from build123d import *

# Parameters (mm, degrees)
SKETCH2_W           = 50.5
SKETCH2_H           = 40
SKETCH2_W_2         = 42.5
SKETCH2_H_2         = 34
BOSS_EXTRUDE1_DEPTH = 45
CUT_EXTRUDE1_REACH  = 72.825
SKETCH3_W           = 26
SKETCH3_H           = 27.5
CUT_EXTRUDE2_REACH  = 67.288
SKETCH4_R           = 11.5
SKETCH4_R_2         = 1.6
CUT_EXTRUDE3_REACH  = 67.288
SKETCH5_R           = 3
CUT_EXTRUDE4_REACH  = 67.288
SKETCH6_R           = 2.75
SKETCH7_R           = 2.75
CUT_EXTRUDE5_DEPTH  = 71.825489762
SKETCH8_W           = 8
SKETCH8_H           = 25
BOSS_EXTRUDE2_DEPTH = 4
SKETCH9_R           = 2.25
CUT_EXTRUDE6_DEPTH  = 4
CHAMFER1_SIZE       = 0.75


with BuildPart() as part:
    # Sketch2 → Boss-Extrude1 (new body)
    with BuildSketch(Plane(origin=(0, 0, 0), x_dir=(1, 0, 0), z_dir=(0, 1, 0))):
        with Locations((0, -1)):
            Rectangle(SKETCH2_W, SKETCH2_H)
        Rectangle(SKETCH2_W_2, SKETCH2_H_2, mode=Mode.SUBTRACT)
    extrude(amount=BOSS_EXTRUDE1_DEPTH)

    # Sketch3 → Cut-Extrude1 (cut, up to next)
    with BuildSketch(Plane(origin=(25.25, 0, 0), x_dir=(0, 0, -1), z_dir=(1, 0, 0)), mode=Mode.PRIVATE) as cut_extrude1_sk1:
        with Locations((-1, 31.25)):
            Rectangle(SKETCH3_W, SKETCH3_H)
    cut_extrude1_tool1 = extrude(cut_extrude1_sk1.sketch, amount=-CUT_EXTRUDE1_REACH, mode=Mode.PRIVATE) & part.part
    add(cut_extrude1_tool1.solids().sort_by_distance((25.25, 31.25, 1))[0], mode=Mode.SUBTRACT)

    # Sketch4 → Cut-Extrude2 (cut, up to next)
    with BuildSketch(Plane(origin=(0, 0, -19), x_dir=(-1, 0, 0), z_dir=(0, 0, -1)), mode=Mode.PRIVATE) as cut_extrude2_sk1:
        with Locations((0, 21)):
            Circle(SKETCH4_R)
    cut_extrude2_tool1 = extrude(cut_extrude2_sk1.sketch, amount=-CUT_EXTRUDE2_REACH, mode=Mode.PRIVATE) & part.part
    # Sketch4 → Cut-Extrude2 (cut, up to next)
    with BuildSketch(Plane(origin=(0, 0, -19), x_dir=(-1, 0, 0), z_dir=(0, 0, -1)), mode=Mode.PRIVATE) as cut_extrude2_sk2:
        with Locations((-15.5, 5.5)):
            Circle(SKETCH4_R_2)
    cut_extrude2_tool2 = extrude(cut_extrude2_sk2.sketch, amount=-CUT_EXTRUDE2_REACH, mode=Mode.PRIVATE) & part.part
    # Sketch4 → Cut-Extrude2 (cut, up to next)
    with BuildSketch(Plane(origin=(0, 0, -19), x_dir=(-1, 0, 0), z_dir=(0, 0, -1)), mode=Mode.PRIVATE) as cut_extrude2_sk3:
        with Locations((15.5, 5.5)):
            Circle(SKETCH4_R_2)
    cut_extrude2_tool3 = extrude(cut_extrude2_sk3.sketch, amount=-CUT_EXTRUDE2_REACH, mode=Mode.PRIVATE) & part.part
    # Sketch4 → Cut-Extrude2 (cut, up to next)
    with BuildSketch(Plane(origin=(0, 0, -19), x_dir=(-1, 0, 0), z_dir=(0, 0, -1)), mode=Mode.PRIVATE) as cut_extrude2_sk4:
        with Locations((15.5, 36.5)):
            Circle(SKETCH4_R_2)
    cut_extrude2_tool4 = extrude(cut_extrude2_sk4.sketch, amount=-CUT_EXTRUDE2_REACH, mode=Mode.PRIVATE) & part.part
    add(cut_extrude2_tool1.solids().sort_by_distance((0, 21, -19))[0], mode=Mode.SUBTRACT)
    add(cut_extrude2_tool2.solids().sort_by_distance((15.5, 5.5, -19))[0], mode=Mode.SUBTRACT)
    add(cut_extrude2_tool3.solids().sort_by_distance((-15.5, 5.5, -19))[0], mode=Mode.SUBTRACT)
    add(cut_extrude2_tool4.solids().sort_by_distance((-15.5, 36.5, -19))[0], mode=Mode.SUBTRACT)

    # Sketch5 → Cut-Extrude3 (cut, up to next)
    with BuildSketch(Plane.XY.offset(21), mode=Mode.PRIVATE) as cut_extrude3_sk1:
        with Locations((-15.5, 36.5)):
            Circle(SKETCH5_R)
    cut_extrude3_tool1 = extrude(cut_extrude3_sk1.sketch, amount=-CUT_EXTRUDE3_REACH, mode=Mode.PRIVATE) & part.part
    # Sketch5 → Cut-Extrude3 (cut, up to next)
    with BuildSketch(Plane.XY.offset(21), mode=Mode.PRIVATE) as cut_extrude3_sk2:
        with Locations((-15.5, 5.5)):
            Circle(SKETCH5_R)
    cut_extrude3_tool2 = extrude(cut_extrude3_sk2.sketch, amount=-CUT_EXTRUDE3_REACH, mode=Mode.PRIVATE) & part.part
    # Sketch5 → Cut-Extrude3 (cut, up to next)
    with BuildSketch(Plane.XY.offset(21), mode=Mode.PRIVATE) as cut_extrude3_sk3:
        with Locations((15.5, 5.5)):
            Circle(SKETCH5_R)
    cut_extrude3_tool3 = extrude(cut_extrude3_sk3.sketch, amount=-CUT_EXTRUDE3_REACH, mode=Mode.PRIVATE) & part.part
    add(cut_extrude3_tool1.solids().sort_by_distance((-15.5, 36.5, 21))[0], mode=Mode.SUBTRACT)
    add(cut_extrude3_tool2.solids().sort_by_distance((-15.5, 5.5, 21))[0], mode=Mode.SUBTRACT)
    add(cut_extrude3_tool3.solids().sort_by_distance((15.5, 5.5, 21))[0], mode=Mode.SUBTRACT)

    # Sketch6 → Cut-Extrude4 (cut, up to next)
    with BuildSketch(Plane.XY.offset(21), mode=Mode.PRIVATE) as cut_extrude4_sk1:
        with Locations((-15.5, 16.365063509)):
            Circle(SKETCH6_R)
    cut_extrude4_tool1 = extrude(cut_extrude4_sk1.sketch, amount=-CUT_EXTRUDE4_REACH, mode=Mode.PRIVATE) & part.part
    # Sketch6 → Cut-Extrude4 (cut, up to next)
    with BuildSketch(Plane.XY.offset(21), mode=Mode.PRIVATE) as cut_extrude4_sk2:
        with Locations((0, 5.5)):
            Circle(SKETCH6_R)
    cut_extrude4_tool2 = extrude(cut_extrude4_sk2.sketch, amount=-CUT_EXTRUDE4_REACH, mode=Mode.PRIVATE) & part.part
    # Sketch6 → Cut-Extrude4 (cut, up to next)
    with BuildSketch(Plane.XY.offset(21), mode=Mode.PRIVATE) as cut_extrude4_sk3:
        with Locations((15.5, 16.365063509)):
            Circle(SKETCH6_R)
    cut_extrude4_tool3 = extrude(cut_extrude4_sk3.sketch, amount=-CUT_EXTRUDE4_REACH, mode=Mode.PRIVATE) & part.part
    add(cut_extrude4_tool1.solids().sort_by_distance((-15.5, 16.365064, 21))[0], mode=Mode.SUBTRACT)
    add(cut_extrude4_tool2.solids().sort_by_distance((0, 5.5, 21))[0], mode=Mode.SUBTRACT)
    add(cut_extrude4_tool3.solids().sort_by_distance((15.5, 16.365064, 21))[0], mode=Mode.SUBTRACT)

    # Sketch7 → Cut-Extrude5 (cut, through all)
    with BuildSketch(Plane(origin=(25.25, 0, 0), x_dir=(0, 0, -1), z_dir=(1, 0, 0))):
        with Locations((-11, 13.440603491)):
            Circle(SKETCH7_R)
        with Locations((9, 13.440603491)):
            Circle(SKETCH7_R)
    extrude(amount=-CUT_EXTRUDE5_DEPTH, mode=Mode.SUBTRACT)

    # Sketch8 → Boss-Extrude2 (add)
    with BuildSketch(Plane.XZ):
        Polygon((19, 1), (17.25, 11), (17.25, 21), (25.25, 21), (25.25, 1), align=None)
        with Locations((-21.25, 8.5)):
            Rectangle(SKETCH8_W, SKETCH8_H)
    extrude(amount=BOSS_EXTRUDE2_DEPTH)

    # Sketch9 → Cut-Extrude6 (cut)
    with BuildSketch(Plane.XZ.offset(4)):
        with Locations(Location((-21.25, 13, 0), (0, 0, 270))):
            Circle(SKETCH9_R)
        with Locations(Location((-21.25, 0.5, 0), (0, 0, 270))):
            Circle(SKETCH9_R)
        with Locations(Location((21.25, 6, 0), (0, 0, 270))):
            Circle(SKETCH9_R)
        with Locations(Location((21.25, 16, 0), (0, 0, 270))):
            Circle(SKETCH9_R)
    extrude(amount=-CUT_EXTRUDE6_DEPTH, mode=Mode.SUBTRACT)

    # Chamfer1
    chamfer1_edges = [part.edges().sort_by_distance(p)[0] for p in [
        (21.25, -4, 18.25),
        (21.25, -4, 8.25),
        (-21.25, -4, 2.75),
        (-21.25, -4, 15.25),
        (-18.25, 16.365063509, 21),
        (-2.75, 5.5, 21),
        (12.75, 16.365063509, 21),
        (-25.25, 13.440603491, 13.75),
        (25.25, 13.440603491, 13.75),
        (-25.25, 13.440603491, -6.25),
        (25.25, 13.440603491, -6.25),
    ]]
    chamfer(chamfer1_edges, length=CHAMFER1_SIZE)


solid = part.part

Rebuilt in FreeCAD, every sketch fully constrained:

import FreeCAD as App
import Part
import Sketcher

V = App.Vector


def edges_at(feature, points):
    """Names of the edges that pass closest to the given points."""
    edges = feature.Shape.Edges
    near = lambda p: min(range(len(edges)), key=lambda i: edges[i].distToShape(Part.Vertex(*p))[0])
    return sorted({f"Edge{near(p) + 1}" for p in points})

doc = App.newDocument("Part")
params = doc.addObject("Spreadsheet::Sheet", "Params")
for row, (alias, value) in enumerate([
    ("sketch1_height", "40 mm"),
    ("sketch1_height2", "34 mm"),
    ("sketch1_width", "50.5 mm"),
    ("sketch1_width2", "42.5 mm"),
    ("pad1_length", "45 mm"),
    ("sketch2_height", "26 mm"),
    ("sketch2_width", "27.5 mm"),
    ("sketch3_diameter", "23 mm"),
    ("sketch4_diameter", "3.2 mm"),
    ("sketch5_diameter", "3.2 mm"),
    ("sketch6_diameter", "3.2 mm"),
    ("sketch7_diameter", "6 mm"),
    ("sketch8_diameter", "6 mm"),
    ("sketch9_diameter", "6 mm"),
    ("sketch10_diameter", "5.5 mm"),
    ("sketch11_diameter", "5.5 mm"),
    ("sketch12_diameter", "5.5 mm"),
    ("sketch13_diameter", "5.5 mm"),
    ("sketch14_width", "8 mm"),
    ("sketch14_height", "20 mm"),
    ("sketch14_height2", "10 mm"),
    ("sketch14_height3", "25 mm"),
    ("sketch14_width2", "6.25 mm"),
    ("pad2_length", "4 mm"),
    ("sketch15_diameter", "4.5 mm"),
    ("pocket13_length", "4 mm"),
    ("chamfer_size", "0.75 mm"),
], start=1):
    params.set(f"A{row}", alias)
    params.set(f"B{row}", "=" + value)
    params.setAlias(f"B{row}", alias)

body = doc.addObject("PartDesign::Body", "Body")

sketch1 = body.newObject("Sketcher::SketchObject", "Sketch")
sketch1.AttachmentSupport = (doc.getObject("XZ_Plane"), [""])
sketch1.MapMode = "FlatFace"
sketch1.addGeometry([
    Part.LineSegment(V(-25, -19, 0), V(-25, 21, 0)),
    Part.LineSegment(V(-25, 21, 0), V(25, 21, 0)),
    Part.LineSegment(V(25, 21, 0), V(25, -19, 0)),
    Part.LineSegment(V(25, -19, 0), V(-25, -19, 0)),
    Part.LineSegment(V(21, 17, 0), V(-21, 17, 0)),
    Part.LineSegment(V(-21, 17, 0), V(-21, -17, 0)),
    Part.LineSegment(V(-21, -17, 0), V(21, -17, 0)),
    Part.LineSegment(V(21, -17, 0), V(21, 17, 0)),
], False)
sketch1.addConstraint([
    Sketcher.Constraint("Coincident", 0, 2, 1, 1),
    Sketcher.Constraint("Coincident", 1, 2, 2, 1),
    Sketcher.Constraint("Coincident", 2, 2, 3, 1),
    Sketcher.Constraint("Coincident", 3, 2, 0, 1),
    Sketcher.Constraint("Coincident", 4, 2, 5, 1),
    Sketcher.Constraint("Coincident", 5, 2, 6, 1),
    Sketcher.Constraint("Coincident", 6, 2, 7, 1),
    Sketcher.Constraint("Coincident", 7, 2, 4, 1),
    Sketcher.Constraint("Vertical", 0),
    Sketcher.Constraint("Horizontal", 1),
    Sketcher.Constraint("Vertical", 2),
    Sketcher.Constraint("Horizontal", 3),
    Sketcher.Constraint("Horizontal", 4),
    Sketcher.Constraint("Vertical", 5),
    Sketcher.Constraint("Horizontal", 6),
    Sketcher.Constraint("Vertical", 7),
    Sketcher.Constraint("Symmetric", 4, 2, 6, 2, -1, 1),
    Sketcher.Constraint("DistanceY", 0, 1, 0, 2, 40.0),
    Sketcher.Constraint("DistanceY", 5, 2, 5, 1, 34.0),
    Sketcher.Constraint("DistanceX", 1, 1, 1, 2, 50.5),
    Sketcher.Constraint("DistanceX", 4, 2, 4, 1, 42.5),
    Sketcher.Constraint("DistanceY", -1, 1, 0, 2, 21.0),
    Sketcher.Constraint("DistanceX", 0, 2, 4, 2, 4.0),
])
sketch1.setExpression("Constraints[17]", "Params.sketch1_height")
sketch1.setExpression("Constraints[18]", "Params.sketch1_height2")
sketch1.setExpression("Constraints[19]", "Params.sketch1_width")
sketch1.setExpression("Constraints[20]", "Params.sketch1_width2")
pad1 = body.newObject("PartDesign::Pad", "Pad")
pad1.Profile = sketch1
pad1.setExpression("Length", "Params.pad1_length")
pad1.Reversed = True

sketch2 = body.newObject("Sketcher::SketchObject", "Sketch001")
sketch2.AttachmentSupport = (doc.getObject("YZ_Plane"), [""])
sketch2.MapMode = "FlatFace"
sketch2.AttachmentOffset = App.Placement(V(0, 0, 25.25), App.Rotation())
sketch2.addGeometry([
    Part.LineSegment(V(45, 14, 0), V(18, 14, 0)),
    Part.LineSegment(V(18, 14, 0), V(18, -12, 0)),
    Part.LineSegment(V(18, -12, 0), V(45, -12, 0)),
    Part.LineSegment(V(45, -12, 0), V(45, 14, 0)),
], False)
sketch2.addConstraint([
    Sketcher.Constraint("Coincident", 0, 2, 1, 1),
    Sketcher.Constraint("Coincident", 1, 2, 2, 1),
    Sketcher.Constraint("Coincident", 2, 2, 3, 1),
    Sketcher.Constraint("Coincident", 3, 2, 0, 1),
    Sketcher.Constraint("Horizontal", 0),
    Sketcher.Constraint("Vertical", 1),
    Sketcher.Constraint("Horizontal", 2),
    Sketcher.Constraint("Vertical", 3),
    Sketcher.Constraint("DistanceY", 1, 2, 1, 1, 26.0),
    Sketcher.Constraint("DistanceX", 0, 2, 0, 1, 27.5),
    Sketcher.Constraint("DistanceY", -1, 1, 0, 2, 14.0),
    Sketcher.Constraint("DistanceX", -1, 1, 2, 2, 45.0),
])
sketch2.setExpression("Constraints[8]", "Params.sketch2_height")
sketch2.setExpression("Constraints[9]", "Params.sketch2_width")
pocket1 = body.newObject("PartDesign::Pocket", "Pocket")
pocket1.Profile = sketch2
pocket1.Type = "UpToFirst"

sketch3 = body.newObject("Sketcher::SketchObject", "Sketch002")
sketch3.AttachmentSupport = (doc.getObject("XY_Plane"), [""])
sketch3.MapMode = "FlatFace"
sketch3.AttachmentOffset = App.Placement(V(0, 0, -19), App.Rotation())
sketch3.addGeometry(Part.Circle(V(0, 21, 0), V(0, 0, 1), 12), False)
sketch3.addConstraint([
    Sketcher.Constraint("PointOnObject", 0, 3, -2),
    Sketcher.Constraint("Diameter", 0, 23.0),
    Sketcher.Constraint("DistanceY", -1, 1, 0, 3, 21.0),
])
sketch3.setExpression("Constraints[1]", "Params.sketch3_diameter")
pocket2 = body.newObject("PartDesign::Pocket", "Pocket001")
pocket2.Profile = sketch3
pocket2.Type = "UpToFirst"
pocket2.Reversed = True

sketch4 = body.newObject("Sketcher::SketchObject", "Sketch003")
sketch4.AttachmentSupport = (doc.getObject("XY_Plane"), [""])
sketch4.MapMode = "FlatFace"
sketch4.AttachmentOffset = App.Placement(V(0, 0, -19), App.Rotation())
sketch4.addGeometry(Part.Circle(V(15.5, 5.5, 0), V(0, 0, 1), 1.6), False)
sketch4.addConstraint([
    Sketcher.Constraint("Diameter", 0, 3.2),
    Sketcher.Constraint("DistanceX", -1, 1, 0, 3, 15.5),
    Sketcher.Constraint("DistanceY", -1, 1, 0, 3, 5.5),
])
sketch4.setExpression("Constraints[0]", "Params.sketch4_diameter")
pocket3 = body.newObject("PartDesign::Pocket", "Pocket002")
pocket3.Profile = sketch4
pocket3.Type = "UpToFirst"
pocket3.Reversed = True

sketch5 = body.newObject("Sketcher::SketchObject", "Sketch004")
sketch5.AttachmentSupport = (doc.getObject("XY_Plane"), [""])
sketch5.MapMode = "FlatFace"
sketch5.AttachmentOffset = App.Placement(V(0, 0, -19), App.Rotation())
sketch5.addGeometry(Part.Circle(V(-15.5, 5.5, 0), V(0, 0, 1), 1.6), False)
sketch5.addConstraint([
    Sketcher.Constraint("Diameter", 0, 3.2),
    Sketcher.Constraint("DistanceX", 0, 3, -1, 1, 15.5),
    Sketcher.Constraint("DistanceY", -1, 1, 0, 3, 5.5),
])
sketch5.setExpression("Constraints[0]", "Params.sketch5_diameter")
pocket4 = body.newObject("PartDesign::Pocket", "Pocket003")
pocket4.Profile = sketch5
pocket4.Type = "UpToFirst"
pocket4.Reversed = True

sketch6 = body.newObject("Sketcher::SketchObject", "Sketch005")
sketch6.AttachmentSupport = (doc.getObject("XY_Plane"), [""])
sketch6.MapMode = "FlatFace"
sketch6.AttachmentOffset = App.Placement(V(0, 0, -19), App.Rotation())
sketch6.addGeometry(Part.Circle(V(-15.5, 36.5, 0), V(0, 0, 1), 1.6), False)
sketch6.addConstraint([
    Sketcher.Constraint("Diameter", 0, 3.2),
    Sketcher.Constraint("DistanceX", 0, 3, -1, 1, 15.5),
    Sketcher.Constraint("DistanceY", -1, 1, 0, 3, 36.5),
])
sketch6.setExpression("Constraints[0]", "Params.sketch6_diameter")
pocket5 = body.newObject("PartDesign::Pocket", "Pocket004")
pocket5.Profile = sketch6
pocket5.Type = "UpToFirst"
pocket5.Reversed = True

sketch7 = body.newObject("Sketcher::SketchObject", "Sketch006")
sketch7.AttachmentSupport = (doc.getObject("XY_Plane"), [""])
sketch7.MapMode = "FlatFace"
sketch7.AttachmentOffset = App.Placement(V(0, 0, 21), App.Rotation())
sketch7.addGeometry(Part.Circle(V(-15.5, 36.5, 0), V(0, 0, 1), 3), False)
sketch7.addConstraint([
    Sketcher.Constraint("Diameter", 0, 6.0),
    Sketcher.Constraint("DistanceX", 0, 3, -1, 1, 15.5),
    Sketcher.Constraint("DistanceY", -1, 1, 0, 3, 36.5),
])
sketch7.setExpression("Constraints[0]", "Params.sketch7_diameter")
pocket6 = body.newObject("PartDesign::Pocket", "Pocket005")
pocket6.Profile = sketch7
pocket6.Type = "UpToFirst"

sketch8 = body.newObject("Sketcher::SketchObject", "Sketch007")
sketch8.AttachmentSupport = (doc.getObject("XY_Plane"), [""])
sketch8.MapMode = "FlatFace"
sketch8.AttachmentOffset = App.Placement(V(0, 0, 21), App.Rotation())
sketch8.addGeometry(Part.Circle(V(-15.5, 5.5, 0), V(0, 0, 1), 3), False)
sketch8.addConstraint([
    Sketcher.Constraint("Diameter", 0, 6.0),
    Sketcher.Constraint("DistanceX", 0, 3, -1, 1, 15.5),
    Sketcher.Constraint("DistanceY", -1, 1, 0, 3, 5.5),
])
sketch8.setExpression("Constraints[0]", "Params.sketch8_diameter")
pocket7 = body.newObject("PartDesign::Pocket", "Pocket006")
pocket7.Profile = sketch8
pocket7.Type = "UpToFirst"

sketch9 = body.newObject("Sketcher::SketchObject", "Sketch008")
sketch9.AttachmentSupport = (doc.getObject("XY_Plane"), [""])
sketch9.MapMode = "FlatFace"
sketch9.AttachmentOffset = App.Placement(V(0, 0, 21), App.Rotation())
sketch9.addGeometry(Part.Circle(V(15.5, 5.5, 0), V(0, 0, 1), 3), False)
sketch9.addConstraint([
    Sketcher.Constraint("Diameter", 0, 6.0),
    Sketcher.Constraint("DistanceX", -1, 1, 0, 3, 15.5),
    Sketcher.Constraint("DistanceY", -1, 1, 0, 3, 5.5),
])
sketch9.setExpression("Constraints[0]", "Params.sketch9_diameter")
pocket8 = body.newObject("PartDesign::Pocket", "Pocket007")
pocket8.Profile = sketch9
pocket8.Type = "UpToFirst"

sketch10 = body.newObject("Sketcher::SketchObject", "Sketch009")
sketch10.AttachmentSupport = (doc.getObject("XY_Plane"), [""])
sketch10.MapMode = "FlatFace"
sketch10.AttachmentOffset = App.Placement(V(0, 0, 21), App.Rotation())
sketch10.addGeometry(Part.Circle(V(-15.5, 16.4, 0), V(0, 0, 1), 2.8), False)
sketch10.addConstraint([
    Sketcher.Constraint("Diameter", 0, 5.5),
    Sketcher.Constraint("DistanceX", 0, 3, -1, 1, 15.5),
    Sketcher.Constraint("DistanceY", -1, 1, 0, 3, 16.365064),
])
sketch10.setExpression("Constraints[0]", "Params.sketch10_diameter")
pocket9 = body.newObject("PartDesign::Pocket", "Pocket008")
pocket9.Profile = sketch10
pocket9.Type = "UpToFirst"

sketch11 = body.newObject("Sketcher::SketchObject", "Sketch010")
sketch11.AttachmentSupport = (doc.getObject("XY_Plane"), [""])
sketch11.MapMode = "FlatFace"
sketch11.AttachmentOffset = App.Placement(V(0, 0, 21), App.Rotation())
sketch11.addGeometry(Part.Circle(V(0, 5.5, 0), V(0, 0, 1), 2.8), False)
sketch11.addConstraint([
    Sketcher.Constraint("PointOnObject", 0, 3, -2),
    Sketcher.Constraint("Diameter", 0, 5.5),
    Sketcher.Constraint("DistanceY", -1, 1, 0, 3, 5.5),
])
sketch11.setExpression("Constraints[1]", "Params.sketch11_diameter")
pocket10 = body.newObject("PartDesign::Pocket", "Pocket009")
pocket10.Profile = sketch11
pocket10.Type = "UpToFirst"

sketch12 = body.newObject("Sketcher::SketchObject", "Sketch011")
sketch12.AttachmentSupport = (doc.getObject("XY_Plane"), [""])
sketch12.MapMode = "FlatFace"
sketch12.AttachmentOffset = App.Placement(V(0, 0, 21), App.Rotation())
sketch12.addGeometry(Part.Circle(V(15.5, 16.4, 0), V(0, 0, 1), 2.8), False)
sketch12.addConstraint([
    Sketcher.Constraint("Diameter", 0, 5.5),
    Sketcher.Constraint("DistanceX", -1, 1, 0, 3, 15.5),
    Sketcher.Constraint("DistanceY", -1, 1, 0, 3, 16.365064),
])
sketch12.setExpression("Constraints[0]", "Params.sketch12_diameter")
pocket11 = body.newObject("PartDesign::Pocket", "Pocket010")
pocket11.Profile = sketch12
pocket11.Type = "UpToFirst"

sketch13 = body.newObject("Sketcher::SketchObject", "Sketch012")
sketch13.AttachmentSupport = (doc.getObject("YZ_Plane"), [""])
sketch13.MapMode = "FlatFace"
sketch13.AttachmentOffset = App.Placement(V(0, 0, 25.25), App.Rotation())
sketch13.addGeometry([
    Part.Circle(V(13.4, 11, 0), V(0, 0, 1), 2.8),
    Part.Circle(V(13.4, -9, 0), V(0, 0, 1), 2.8),
], False)
sketch13.addConstraint([
    Sketcher.Constraint("Equal", 0, 1),
    Sketcher.Constraint("Vertical", 0, 3, 1, 3),
    Sketcher.Constraint("Diameter", 0, 5.5),
    Sketcher.Constraint("DistanceY", -1, 1, 0, 3, 11.0),
    Sketcher.Constraint("DistanceY", 1, 3, -1, 1, 9.0),
    Sketcher.Constraint("DistanceX", -1, 1, 0, 3, 13.440603),
])
sketch13.setExpression("Constraints[2]", "Params.sketch13_diameter")
pocket12 = body.newObject("PartDesign::Pocket", "Pocket011")
pocket12.Profile = sketch13
pocket12.Type = "ThroughAll"

sketch14 = body.newObject("Sketcher::SketchObject", "Sketch013")
sketch14.AttachmentSupport = (doc.getObject("XZ_Plane"), [""])
sketch14.MapMode = "FlatFace"
sketch14.addGeometry([
    Part.LineSegment(V(17, 11, 0), V(19, 1, 0)),
    Part.LineSegment(V(19, 1, 0), V(25, 1, 0)),
    Part.LineSegment(V(25, 1, 0), V(25, 21, 0)),
    Part.LineSegment(V(25, 21, 0), V(17, 21, 0)),
    Part.LineSegment(V(17, 21, 0), V(17, 11, 0)),
    Part.LineSegment(V(-25, 21, 0), V(-25, -4, 0)),
    Part.LineSegment(V(-25, -4, 0), V(-17, -4, 0)),
    Part.LineSegment(V(-17, -4, 0), V(-17, 21, 0)),
    Part.LineSegment(V(-17, 21, 0), V(-25, 21, 0)),
], False)
sketch14.addConstraint([
    Sketcher.Constraint("Coincident", 0, 2, 1, 1),
    Sketcher.Constraint("Coincident", 1, 2, 2, 1),
    Sketcher.Constraint("Coincident", 2, 2, 3, 1),
    Sketcher.Constraint("Coincident", 3, 2, 4, 1),
    Sketcher.Constraint("Coincident", 4, 2, 0, 1),
    Sketcher.Constraint("Coincident", 5, 2, 6, 1),
    Sketcher.Constraint("Coincident", 6, 2, 7, 1),
    Sketcher.Constraint("Coincident", 7, 2, 8, 1),
    Sketcher.Constraint("Coincident", 8, 2, 5, 1),
    Sketcher.Constraint("Horizontal", 1),
    Sketcher.Constraint("Vertical", 2),
    Sketcher.Constraint("Horizontal", 3),
    Sketcher.Constraint("Vertical", 4),
    Sketcher.Constraint("Vertical", 5),
    Sketcher.Constraint("Horizontal", 6),
    Sketcher.Constraint("Vertical", 7),
    Sketcher.Constraint("Horizontal", 8),
    Sketcher.Constraint("Symmetric", 3, 2, 7, 2, -2),
    Sketcher.Constraint("Equal", 3, 6),
    Sketcher.Constraint("DistanceX", 3, 2, 3, 1, 8.0),
    Sketcher.Constraint("DistanceY", 2, 1, 2, 2, 20.0),
    Sketcher.Constraint("DistanceY", 4, 2, 4, 1, 10.0),
    Sketcher.Constraint("DistanceY", 5, 2, 5, 1, 25.0),
    Sketcher.Constraint("DistanceX", -1, 1, 0, 2, 19.0),
    Sketcher.Constraint("DistanceY", -1, 1, 0, 2, 1.0),
    Sketcher.Constraint("DistanceX", 1, 1, 1, 2, 6.25),
])
sketch14.setExpression("Constraints[19]", "Params.sketch14_width")
sketch14.setExpression("Constraints[20]", "Params.sketch14_height")
sketch14.setExpression("Constraints[21]", "Params.sketch14_height2")
sketch14.setExpression("Constraints[22]", "Params.sketch14_height3")
sketch14.setExpression("Constraints[25]", "Params.sketch14_width2")
pad2 = body.newObject("PartDesign::Pad", "Pad001")
pad2.Profile = sketch14
pad2.setExpression("Length", "Params.pad2_length")

sketch15 = body.newObject("Sketcher::SketchObject", "Sketch014")
sketch15.AttachmentSupport = (doc.getObject("XZ_Plane"), [""])
sketch15.MapMode = "FlatFace"
sketch15.AttachmentOffset = App.Placement(V(0, 0, 4), App.Rotation())
sketch15.addGeometry([
    Part.Circle(V(-21.2, 13, 0), V(0, 0, 1), 2.2),
    Part.Circle(V(-21.2, 0.5, 0), V(0, 0, 1), 2.2),
    Part.Circle(V(21.2, 6, 0), V(0, 0, 1), 2.2),
    Part.Circle(V(21.2, 16, 0), V(0, 0, 1), 2.2),
], False)
sketch15.addConstraint([
    Sketcher.Constraint("Equal", 0, 1),
    Sketcher.Constraint("Equal", 1, 2),
    Sketcher.Constraint("Equal", 2, 3),
    Sketcher.Constraint("Vertical", 0, 3, 1, 3),
    Sketcher.Constraint("Vertical", 2, 3, 3, 3),
    Sketcher.Constraint("Diameter", 0, 4.5),
    Sketcher.Constraint("DistanceY", -1, 1, 0, 3, 13.0),
    Sketcher.Constraint("DistanceY", -1, 1, 2, 3, 6.0),
    Sketcher.Constraint("DistanceY", -1, 1, 3, 3, 16.0),
    Sketcher.Constraint("DistanceY", -1, 1, 1, 3, 0.5),
    Sketcher.Constraint("DistanceX", 1, 3, 2, 3, 42.5),
    Sketcher.Constraint("DistanceX", 0, 3, -1, 1, 21.25),
])
sketch15.setExpression("Constraints[5]", "Params.sketch15_diameter")
pocket13 = body.newObject("PartDesign::Pocket", "Pocket012")
pocket13.Profile = sketch15
pocket13.setExpression("Length", "Params.pocket13_length")
doc.recompute()

chamfer = body.newObject("PartDesign::Chamfer", "Chamfer")
chamfer.Base = (pocket13, edges_at(pocket13, [
    (21.25, -4, 18.25),
    (21.25, -4, 8.25),
    (-21.25, -4, 2.75),
    (-21.25, -4, 15.25),
    (-18.25, 16.365, 21),
    (-2.75, 5.5, 21),
    (12.75, 16.365, 21),
    (-25.25, 13.441, 13.75),
    (25.25, 13.441, 13.75),
    (-25.25, 13.441, -6.25),
    (25.25, 13.441, -6.25),
]))
chamfer.setExpression("Size", "Params.chamfer_size")

doc.recompute()
